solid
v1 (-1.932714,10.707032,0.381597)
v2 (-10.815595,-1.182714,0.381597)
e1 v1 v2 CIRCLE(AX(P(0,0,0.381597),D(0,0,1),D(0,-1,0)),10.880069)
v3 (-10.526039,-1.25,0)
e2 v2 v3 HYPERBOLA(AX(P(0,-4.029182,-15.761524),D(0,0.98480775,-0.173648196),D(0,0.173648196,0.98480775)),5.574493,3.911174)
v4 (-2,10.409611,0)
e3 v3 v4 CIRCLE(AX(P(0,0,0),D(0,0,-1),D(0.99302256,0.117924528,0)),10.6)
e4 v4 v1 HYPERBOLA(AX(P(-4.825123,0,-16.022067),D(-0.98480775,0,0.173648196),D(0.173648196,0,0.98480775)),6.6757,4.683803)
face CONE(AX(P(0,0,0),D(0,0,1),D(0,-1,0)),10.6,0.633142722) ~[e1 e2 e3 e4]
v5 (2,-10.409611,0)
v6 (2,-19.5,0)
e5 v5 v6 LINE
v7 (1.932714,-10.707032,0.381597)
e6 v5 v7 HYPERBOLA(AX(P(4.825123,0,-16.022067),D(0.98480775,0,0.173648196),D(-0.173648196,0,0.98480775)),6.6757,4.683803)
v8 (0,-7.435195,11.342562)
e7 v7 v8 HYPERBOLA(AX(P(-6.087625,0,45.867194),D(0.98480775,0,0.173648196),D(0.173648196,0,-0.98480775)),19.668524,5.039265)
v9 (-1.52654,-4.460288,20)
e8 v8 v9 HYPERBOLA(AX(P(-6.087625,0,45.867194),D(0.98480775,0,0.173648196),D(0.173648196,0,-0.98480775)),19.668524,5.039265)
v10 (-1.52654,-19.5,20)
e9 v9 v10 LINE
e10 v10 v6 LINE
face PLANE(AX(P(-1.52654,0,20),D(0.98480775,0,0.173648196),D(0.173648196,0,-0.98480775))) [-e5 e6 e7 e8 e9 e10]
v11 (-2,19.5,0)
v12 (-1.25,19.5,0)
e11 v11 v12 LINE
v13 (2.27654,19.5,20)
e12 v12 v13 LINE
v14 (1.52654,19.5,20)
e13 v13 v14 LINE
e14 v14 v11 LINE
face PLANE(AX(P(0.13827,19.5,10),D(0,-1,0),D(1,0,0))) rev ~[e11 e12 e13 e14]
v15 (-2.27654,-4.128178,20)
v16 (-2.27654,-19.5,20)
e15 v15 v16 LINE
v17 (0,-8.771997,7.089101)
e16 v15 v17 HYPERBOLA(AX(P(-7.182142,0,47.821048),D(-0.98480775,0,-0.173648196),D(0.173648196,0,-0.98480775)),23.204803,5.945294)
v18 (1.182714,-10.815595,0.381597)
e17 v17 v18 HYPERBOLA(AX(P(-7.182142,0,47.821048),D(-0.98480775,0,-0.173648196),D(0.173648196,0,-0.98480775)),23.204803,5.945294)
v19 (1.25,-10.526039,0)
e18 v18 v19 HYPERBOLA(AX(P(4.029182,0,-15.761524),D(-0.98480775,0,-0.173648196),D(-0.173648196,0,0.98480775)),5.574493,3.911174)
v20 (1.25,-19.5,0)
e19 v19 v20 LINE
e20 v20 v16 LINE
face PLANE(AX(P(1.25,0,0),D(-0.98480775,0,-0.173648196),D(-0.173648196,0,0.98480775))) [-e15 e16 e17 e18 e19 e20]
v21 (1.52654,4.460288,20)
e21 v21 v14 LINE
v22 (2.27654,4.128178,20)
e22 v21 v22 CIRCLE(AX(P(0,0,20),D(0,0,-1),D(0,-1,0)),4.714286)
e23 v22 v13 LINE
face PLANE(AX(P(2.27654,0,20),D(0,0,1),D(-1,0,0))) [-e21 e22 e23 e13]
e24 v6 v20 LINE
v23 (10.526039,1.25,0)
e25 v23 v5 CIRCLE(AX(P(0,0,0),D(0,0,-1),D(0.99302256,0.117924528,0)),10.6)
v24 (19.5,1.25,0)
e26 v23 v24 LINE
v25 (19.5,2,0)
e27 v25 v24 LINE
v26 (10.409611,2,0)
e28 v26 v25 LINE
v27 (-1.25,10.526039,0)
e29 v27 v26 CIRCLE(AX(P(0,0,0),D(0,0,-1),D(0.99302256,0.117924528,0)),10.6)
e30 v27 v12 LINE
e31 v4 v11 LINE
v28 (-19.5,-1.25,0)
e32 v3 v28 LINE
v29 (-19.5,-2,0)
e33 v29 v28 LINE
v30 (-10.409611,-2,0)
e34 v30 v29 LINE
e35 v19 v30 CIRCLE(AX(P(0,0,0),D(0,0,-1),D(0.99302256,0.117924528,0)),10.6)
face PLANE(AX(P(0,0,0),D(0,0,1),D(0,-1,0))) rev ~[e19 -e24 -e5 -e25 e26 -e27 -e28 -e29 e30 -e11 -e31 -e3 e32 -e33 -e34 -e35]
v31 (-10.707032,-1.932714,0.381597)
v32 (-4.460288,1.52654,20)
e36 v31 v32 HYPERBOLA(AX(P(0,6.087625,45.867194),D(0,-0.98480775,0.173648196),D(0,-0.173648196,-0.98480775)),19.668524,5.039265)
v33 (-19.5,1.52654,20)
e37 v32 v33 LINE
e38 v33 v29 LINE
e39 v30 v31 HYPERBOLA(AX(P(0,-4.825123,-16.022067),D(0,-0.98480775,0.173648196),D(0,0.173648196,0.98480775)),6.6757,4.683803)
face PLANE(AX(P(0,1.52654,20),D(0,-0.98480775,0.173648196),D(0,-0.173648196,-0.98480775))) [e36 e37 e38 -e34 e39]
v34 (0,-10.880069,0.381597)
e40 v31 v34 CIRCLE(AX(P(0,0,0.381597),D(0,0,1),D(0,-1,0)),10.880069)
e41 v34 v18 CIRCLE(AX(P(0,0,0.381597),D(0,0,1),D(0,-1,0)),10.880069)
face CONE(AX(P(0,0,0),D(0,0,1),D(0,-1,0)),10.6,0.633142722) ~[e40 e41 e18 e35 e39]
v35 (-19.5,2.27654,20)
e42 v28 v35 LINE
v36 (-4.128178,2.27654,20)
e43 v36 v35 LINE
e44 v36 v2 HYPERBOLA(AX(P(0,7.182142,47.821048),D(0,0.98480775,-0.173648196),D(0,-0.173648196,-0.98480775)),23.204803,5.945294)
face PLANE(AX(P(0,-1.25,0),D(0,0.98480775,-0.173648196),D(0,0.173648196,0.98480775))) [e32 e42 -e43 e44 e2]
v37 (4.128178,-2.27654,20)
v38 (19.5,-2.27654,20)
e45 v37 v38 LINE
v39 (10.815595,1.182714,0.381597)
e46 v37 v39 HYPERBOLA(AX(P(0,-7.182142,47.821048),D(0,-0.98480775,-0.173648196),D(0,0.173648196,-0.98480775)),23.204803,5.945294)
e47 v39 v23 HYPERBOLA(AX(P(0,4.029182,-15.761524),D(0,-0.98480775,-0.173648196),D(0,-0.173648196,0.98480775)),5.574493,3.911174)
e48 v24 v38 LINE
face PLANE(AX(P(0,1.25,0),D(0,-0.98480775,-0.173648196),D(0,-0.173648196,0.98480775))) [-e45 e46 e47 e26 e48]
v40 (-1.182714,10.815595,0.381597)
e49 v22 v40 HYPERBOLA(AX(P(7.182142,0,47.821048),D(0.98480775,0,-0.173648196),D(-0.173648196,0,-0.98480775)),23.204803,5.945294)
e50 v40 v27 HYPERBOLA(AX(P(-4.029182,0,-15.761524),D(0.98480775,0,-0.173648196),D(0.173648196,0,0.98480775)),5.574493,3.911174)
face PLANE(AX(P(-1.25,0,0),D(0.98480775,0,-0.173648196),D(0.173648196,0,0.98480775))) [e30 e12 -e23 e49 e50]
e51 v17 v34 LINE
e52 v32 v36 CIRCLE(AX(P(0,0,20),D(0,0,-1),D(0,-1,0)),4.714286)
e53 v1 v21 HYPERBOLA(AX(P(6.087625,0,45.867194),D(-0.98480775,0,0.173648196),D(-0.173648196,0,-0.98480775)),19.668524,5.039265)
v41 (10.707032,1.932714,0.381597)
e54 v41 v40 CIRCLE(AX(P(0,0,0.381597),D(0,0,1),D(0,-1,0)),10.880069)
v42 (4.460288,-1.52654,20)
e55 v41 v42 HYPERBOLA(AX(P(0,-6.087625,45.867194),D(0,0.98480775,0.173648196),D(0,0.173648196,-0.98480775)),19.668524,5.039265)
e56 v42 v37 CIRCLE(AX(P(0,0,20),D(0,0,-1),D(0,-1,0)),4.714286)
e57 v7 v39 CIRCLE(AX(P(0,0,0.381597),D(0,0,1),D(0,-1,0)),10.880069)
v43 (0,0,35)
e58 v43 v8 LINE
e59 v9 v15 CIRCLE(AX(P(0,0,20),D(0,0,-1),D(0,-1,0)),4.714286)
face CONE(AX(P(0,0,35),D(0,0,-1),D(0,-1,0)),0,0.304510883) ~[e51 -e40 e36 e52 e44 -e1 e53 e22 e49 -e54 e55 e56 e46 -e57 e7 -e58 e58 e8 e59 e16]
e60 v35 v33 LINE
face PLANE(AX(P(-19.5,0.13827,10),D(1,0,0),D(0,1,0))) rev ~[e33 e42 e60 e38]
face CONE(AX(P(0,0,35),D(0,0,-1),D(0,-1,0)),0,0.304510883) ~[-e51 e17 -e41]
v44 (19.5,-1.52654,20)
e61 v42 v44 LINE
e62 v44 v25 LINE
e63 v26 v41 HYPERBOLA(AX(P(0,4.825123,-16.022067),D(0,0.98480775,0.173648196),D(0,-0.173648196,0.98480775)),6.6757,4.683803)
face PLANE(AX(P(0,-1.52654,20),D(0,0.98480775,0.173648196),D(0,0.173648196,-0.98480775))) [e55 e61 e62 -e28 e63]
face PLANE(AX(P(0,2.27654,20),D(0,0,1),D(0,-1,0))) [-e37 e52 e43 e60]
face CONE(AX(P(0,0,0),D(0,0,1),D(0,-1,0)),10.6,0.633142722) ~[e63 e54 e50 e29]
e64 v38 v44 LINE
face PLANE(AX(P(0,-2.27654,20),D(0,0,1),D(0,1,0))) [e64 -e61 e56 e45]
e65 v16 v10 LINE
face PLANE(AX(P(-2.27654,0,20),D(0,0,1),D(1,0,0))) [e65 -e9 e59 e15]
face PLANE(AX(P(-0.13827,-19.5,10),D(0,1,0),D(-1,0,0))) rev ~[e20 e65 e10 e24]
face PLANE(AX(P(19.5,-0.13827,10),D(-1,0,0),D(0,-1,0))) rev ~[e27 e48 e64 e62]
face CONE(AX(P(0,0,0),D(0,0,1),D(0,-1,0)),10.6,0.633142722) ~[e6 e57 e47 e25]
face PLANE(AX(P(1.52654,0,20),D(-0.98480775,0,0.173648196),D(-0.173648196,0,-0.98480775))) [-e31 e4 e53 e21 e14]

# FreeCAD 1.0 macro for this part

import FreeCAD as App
import Part
import Sketcher
from FreeCAD import Vector
Q = App.Units.Quantity


def edges_at(feature, points):
    """Names of the edges that pass closest to the given points."""
    edges = feature.Shape.Edges
    near = lambda p: min(range(len(edges)), key=lambda i: edges[i].distToShape(Part.Vertex(*p))[0])
    return sorted({f"Edge{near(p) + 1}" for p in points})

doc = App.newDocument("Part")
body = doc.addObject("PartDesign::Body", "Body")

# Sketch on YZ plane
sketch1 = doc.addObject("Sketcher::SketchObject", "Sketch")
body.addObject(sketch1)
sketch1.AttachmentSupport = (doc.YZ_Plane, [""])
sketch1.MapMode = "FlatFace"
sketch1.addGeometry([
    Part.LineSegment(Vector(0, 35, 0), Vector(-11, 0, 0)),
    Part.LineSegment(Vector(-11, 0, 0), Vector(0, 0, 0)),
    Part.LineSegment(Vector(0, 0, 0), Vector(0, 35, 0)),
], False)
sketch1.addConstraint([
    Sketcher.Constraint("Coincident", 0, 2, 1, 1),
    Sketcher.Constraint("Coincident", 1, 2, 2, 1),
    Sketcher.Constraint("Coincident", 2, 2, 0, 1),
    Sketcher.Constraint("Horizontal", 1),
    Sketcher.Constraint("Vertical", 2),
    Sketcher.Constraint("Coincident", 1, 2, -1, 1),
    Sketcher.Constraint("DistanceX", 1, 1, 1, 2, Q("11 mm")),
    Sketcher.Constraint("DistanceY", 2, 1, 2, 2, Q("35 mm")),
])
revolution = doc.addObject("PartDesign::Revolution", "Revolution")
body.addObject(revolution)
revolution.Profile = sketch1
revolution.ReferenceAxis = (sketch1, ["V_Axis"])
revolution.Angle = 360
doc.recompute()

chamfer = doc.addObject("PartDesign::Chamfer", "Chamfer")
body.addObject(chamfer)
chamfer.Base = (revolution, edges_at(revolution, [(0, 11, 0)]))
chamfer.Size = 0.4

# Sketch on YZ plane
sketch2 = doc.addObject("Sketcher::SketchObject", "Sketch001")
body.addObject(sketch2)
sketch2.AttachmentSupport = (doc.YZ_Plane, [""])
sketch2.MapMode = "FlatFace"
sketch2.addGeometry([
    Part.LineSegment(Vector(-2.3, 20, 0), Vector(1.2, 0, 0)),
    Part.LineSegment(Vector(1.2, 0, 0), Vector(2, 0, 0)),
    Part.LineSegment(Vector(2, 0, 0), Vector(-1.5, 20, 0)),
    Part.LineSegment(Vector(-1.5, 20, 0), Vector(-2.3, 20, 0)),
], False)
sketch2.addConstraint([
    Sketcher.Constraint("Coincident", 0, 2, 1, 1),
    Sketcher.Constraint("Coincident", 1, 2, 2, 1),
    Sketcher.Constraint("Coincident", 2, 2, 3, 1),
    Sketcher.Constraint("Coincident", 3, 2, 0, 1),
    Sketcher.Constraint("Horizontal", 1),
    Sketcher.Constraint("Horizontal", 3),
    Sketcher.Constraint("PointOnObject", 0, 2, -1),
    Sketcher.Constraint("Parallel", 0, 2),
    Sketcher.Constraint("Angle", 0, Q("-79.999999 deg")),
    Sketcher.Constraint("DistanceX", -1, 1, 1, 2, Q("2 mm")),
    Sketcher.Constraint("DistanceY", -1, 1, 2, 2, Q("20 mm")),
    Sketcher.Constraint("DistanceX", 1, 1, 1, 2, Q("0.75 mm")),
])
pad1 = doc.addObject("PartDesign::Pad", "Pad")
body.addObject(pad1)
pad1.Profile = sketch2
pad1.Length = 19.5
doc.recompute()

polarpattern = doc.addObject("PartDesign::PolarPattern", "PolarPattern")
body.addObject(polarpattern)
polarpattern.Originals = [pad1]
polarpattern.Axis = (doc.Z_Axis, [""])
polarpattern.Angle = 360
polarpattern.Occurrences = 4
body.Tip = polarpattern

doc.recompute()
